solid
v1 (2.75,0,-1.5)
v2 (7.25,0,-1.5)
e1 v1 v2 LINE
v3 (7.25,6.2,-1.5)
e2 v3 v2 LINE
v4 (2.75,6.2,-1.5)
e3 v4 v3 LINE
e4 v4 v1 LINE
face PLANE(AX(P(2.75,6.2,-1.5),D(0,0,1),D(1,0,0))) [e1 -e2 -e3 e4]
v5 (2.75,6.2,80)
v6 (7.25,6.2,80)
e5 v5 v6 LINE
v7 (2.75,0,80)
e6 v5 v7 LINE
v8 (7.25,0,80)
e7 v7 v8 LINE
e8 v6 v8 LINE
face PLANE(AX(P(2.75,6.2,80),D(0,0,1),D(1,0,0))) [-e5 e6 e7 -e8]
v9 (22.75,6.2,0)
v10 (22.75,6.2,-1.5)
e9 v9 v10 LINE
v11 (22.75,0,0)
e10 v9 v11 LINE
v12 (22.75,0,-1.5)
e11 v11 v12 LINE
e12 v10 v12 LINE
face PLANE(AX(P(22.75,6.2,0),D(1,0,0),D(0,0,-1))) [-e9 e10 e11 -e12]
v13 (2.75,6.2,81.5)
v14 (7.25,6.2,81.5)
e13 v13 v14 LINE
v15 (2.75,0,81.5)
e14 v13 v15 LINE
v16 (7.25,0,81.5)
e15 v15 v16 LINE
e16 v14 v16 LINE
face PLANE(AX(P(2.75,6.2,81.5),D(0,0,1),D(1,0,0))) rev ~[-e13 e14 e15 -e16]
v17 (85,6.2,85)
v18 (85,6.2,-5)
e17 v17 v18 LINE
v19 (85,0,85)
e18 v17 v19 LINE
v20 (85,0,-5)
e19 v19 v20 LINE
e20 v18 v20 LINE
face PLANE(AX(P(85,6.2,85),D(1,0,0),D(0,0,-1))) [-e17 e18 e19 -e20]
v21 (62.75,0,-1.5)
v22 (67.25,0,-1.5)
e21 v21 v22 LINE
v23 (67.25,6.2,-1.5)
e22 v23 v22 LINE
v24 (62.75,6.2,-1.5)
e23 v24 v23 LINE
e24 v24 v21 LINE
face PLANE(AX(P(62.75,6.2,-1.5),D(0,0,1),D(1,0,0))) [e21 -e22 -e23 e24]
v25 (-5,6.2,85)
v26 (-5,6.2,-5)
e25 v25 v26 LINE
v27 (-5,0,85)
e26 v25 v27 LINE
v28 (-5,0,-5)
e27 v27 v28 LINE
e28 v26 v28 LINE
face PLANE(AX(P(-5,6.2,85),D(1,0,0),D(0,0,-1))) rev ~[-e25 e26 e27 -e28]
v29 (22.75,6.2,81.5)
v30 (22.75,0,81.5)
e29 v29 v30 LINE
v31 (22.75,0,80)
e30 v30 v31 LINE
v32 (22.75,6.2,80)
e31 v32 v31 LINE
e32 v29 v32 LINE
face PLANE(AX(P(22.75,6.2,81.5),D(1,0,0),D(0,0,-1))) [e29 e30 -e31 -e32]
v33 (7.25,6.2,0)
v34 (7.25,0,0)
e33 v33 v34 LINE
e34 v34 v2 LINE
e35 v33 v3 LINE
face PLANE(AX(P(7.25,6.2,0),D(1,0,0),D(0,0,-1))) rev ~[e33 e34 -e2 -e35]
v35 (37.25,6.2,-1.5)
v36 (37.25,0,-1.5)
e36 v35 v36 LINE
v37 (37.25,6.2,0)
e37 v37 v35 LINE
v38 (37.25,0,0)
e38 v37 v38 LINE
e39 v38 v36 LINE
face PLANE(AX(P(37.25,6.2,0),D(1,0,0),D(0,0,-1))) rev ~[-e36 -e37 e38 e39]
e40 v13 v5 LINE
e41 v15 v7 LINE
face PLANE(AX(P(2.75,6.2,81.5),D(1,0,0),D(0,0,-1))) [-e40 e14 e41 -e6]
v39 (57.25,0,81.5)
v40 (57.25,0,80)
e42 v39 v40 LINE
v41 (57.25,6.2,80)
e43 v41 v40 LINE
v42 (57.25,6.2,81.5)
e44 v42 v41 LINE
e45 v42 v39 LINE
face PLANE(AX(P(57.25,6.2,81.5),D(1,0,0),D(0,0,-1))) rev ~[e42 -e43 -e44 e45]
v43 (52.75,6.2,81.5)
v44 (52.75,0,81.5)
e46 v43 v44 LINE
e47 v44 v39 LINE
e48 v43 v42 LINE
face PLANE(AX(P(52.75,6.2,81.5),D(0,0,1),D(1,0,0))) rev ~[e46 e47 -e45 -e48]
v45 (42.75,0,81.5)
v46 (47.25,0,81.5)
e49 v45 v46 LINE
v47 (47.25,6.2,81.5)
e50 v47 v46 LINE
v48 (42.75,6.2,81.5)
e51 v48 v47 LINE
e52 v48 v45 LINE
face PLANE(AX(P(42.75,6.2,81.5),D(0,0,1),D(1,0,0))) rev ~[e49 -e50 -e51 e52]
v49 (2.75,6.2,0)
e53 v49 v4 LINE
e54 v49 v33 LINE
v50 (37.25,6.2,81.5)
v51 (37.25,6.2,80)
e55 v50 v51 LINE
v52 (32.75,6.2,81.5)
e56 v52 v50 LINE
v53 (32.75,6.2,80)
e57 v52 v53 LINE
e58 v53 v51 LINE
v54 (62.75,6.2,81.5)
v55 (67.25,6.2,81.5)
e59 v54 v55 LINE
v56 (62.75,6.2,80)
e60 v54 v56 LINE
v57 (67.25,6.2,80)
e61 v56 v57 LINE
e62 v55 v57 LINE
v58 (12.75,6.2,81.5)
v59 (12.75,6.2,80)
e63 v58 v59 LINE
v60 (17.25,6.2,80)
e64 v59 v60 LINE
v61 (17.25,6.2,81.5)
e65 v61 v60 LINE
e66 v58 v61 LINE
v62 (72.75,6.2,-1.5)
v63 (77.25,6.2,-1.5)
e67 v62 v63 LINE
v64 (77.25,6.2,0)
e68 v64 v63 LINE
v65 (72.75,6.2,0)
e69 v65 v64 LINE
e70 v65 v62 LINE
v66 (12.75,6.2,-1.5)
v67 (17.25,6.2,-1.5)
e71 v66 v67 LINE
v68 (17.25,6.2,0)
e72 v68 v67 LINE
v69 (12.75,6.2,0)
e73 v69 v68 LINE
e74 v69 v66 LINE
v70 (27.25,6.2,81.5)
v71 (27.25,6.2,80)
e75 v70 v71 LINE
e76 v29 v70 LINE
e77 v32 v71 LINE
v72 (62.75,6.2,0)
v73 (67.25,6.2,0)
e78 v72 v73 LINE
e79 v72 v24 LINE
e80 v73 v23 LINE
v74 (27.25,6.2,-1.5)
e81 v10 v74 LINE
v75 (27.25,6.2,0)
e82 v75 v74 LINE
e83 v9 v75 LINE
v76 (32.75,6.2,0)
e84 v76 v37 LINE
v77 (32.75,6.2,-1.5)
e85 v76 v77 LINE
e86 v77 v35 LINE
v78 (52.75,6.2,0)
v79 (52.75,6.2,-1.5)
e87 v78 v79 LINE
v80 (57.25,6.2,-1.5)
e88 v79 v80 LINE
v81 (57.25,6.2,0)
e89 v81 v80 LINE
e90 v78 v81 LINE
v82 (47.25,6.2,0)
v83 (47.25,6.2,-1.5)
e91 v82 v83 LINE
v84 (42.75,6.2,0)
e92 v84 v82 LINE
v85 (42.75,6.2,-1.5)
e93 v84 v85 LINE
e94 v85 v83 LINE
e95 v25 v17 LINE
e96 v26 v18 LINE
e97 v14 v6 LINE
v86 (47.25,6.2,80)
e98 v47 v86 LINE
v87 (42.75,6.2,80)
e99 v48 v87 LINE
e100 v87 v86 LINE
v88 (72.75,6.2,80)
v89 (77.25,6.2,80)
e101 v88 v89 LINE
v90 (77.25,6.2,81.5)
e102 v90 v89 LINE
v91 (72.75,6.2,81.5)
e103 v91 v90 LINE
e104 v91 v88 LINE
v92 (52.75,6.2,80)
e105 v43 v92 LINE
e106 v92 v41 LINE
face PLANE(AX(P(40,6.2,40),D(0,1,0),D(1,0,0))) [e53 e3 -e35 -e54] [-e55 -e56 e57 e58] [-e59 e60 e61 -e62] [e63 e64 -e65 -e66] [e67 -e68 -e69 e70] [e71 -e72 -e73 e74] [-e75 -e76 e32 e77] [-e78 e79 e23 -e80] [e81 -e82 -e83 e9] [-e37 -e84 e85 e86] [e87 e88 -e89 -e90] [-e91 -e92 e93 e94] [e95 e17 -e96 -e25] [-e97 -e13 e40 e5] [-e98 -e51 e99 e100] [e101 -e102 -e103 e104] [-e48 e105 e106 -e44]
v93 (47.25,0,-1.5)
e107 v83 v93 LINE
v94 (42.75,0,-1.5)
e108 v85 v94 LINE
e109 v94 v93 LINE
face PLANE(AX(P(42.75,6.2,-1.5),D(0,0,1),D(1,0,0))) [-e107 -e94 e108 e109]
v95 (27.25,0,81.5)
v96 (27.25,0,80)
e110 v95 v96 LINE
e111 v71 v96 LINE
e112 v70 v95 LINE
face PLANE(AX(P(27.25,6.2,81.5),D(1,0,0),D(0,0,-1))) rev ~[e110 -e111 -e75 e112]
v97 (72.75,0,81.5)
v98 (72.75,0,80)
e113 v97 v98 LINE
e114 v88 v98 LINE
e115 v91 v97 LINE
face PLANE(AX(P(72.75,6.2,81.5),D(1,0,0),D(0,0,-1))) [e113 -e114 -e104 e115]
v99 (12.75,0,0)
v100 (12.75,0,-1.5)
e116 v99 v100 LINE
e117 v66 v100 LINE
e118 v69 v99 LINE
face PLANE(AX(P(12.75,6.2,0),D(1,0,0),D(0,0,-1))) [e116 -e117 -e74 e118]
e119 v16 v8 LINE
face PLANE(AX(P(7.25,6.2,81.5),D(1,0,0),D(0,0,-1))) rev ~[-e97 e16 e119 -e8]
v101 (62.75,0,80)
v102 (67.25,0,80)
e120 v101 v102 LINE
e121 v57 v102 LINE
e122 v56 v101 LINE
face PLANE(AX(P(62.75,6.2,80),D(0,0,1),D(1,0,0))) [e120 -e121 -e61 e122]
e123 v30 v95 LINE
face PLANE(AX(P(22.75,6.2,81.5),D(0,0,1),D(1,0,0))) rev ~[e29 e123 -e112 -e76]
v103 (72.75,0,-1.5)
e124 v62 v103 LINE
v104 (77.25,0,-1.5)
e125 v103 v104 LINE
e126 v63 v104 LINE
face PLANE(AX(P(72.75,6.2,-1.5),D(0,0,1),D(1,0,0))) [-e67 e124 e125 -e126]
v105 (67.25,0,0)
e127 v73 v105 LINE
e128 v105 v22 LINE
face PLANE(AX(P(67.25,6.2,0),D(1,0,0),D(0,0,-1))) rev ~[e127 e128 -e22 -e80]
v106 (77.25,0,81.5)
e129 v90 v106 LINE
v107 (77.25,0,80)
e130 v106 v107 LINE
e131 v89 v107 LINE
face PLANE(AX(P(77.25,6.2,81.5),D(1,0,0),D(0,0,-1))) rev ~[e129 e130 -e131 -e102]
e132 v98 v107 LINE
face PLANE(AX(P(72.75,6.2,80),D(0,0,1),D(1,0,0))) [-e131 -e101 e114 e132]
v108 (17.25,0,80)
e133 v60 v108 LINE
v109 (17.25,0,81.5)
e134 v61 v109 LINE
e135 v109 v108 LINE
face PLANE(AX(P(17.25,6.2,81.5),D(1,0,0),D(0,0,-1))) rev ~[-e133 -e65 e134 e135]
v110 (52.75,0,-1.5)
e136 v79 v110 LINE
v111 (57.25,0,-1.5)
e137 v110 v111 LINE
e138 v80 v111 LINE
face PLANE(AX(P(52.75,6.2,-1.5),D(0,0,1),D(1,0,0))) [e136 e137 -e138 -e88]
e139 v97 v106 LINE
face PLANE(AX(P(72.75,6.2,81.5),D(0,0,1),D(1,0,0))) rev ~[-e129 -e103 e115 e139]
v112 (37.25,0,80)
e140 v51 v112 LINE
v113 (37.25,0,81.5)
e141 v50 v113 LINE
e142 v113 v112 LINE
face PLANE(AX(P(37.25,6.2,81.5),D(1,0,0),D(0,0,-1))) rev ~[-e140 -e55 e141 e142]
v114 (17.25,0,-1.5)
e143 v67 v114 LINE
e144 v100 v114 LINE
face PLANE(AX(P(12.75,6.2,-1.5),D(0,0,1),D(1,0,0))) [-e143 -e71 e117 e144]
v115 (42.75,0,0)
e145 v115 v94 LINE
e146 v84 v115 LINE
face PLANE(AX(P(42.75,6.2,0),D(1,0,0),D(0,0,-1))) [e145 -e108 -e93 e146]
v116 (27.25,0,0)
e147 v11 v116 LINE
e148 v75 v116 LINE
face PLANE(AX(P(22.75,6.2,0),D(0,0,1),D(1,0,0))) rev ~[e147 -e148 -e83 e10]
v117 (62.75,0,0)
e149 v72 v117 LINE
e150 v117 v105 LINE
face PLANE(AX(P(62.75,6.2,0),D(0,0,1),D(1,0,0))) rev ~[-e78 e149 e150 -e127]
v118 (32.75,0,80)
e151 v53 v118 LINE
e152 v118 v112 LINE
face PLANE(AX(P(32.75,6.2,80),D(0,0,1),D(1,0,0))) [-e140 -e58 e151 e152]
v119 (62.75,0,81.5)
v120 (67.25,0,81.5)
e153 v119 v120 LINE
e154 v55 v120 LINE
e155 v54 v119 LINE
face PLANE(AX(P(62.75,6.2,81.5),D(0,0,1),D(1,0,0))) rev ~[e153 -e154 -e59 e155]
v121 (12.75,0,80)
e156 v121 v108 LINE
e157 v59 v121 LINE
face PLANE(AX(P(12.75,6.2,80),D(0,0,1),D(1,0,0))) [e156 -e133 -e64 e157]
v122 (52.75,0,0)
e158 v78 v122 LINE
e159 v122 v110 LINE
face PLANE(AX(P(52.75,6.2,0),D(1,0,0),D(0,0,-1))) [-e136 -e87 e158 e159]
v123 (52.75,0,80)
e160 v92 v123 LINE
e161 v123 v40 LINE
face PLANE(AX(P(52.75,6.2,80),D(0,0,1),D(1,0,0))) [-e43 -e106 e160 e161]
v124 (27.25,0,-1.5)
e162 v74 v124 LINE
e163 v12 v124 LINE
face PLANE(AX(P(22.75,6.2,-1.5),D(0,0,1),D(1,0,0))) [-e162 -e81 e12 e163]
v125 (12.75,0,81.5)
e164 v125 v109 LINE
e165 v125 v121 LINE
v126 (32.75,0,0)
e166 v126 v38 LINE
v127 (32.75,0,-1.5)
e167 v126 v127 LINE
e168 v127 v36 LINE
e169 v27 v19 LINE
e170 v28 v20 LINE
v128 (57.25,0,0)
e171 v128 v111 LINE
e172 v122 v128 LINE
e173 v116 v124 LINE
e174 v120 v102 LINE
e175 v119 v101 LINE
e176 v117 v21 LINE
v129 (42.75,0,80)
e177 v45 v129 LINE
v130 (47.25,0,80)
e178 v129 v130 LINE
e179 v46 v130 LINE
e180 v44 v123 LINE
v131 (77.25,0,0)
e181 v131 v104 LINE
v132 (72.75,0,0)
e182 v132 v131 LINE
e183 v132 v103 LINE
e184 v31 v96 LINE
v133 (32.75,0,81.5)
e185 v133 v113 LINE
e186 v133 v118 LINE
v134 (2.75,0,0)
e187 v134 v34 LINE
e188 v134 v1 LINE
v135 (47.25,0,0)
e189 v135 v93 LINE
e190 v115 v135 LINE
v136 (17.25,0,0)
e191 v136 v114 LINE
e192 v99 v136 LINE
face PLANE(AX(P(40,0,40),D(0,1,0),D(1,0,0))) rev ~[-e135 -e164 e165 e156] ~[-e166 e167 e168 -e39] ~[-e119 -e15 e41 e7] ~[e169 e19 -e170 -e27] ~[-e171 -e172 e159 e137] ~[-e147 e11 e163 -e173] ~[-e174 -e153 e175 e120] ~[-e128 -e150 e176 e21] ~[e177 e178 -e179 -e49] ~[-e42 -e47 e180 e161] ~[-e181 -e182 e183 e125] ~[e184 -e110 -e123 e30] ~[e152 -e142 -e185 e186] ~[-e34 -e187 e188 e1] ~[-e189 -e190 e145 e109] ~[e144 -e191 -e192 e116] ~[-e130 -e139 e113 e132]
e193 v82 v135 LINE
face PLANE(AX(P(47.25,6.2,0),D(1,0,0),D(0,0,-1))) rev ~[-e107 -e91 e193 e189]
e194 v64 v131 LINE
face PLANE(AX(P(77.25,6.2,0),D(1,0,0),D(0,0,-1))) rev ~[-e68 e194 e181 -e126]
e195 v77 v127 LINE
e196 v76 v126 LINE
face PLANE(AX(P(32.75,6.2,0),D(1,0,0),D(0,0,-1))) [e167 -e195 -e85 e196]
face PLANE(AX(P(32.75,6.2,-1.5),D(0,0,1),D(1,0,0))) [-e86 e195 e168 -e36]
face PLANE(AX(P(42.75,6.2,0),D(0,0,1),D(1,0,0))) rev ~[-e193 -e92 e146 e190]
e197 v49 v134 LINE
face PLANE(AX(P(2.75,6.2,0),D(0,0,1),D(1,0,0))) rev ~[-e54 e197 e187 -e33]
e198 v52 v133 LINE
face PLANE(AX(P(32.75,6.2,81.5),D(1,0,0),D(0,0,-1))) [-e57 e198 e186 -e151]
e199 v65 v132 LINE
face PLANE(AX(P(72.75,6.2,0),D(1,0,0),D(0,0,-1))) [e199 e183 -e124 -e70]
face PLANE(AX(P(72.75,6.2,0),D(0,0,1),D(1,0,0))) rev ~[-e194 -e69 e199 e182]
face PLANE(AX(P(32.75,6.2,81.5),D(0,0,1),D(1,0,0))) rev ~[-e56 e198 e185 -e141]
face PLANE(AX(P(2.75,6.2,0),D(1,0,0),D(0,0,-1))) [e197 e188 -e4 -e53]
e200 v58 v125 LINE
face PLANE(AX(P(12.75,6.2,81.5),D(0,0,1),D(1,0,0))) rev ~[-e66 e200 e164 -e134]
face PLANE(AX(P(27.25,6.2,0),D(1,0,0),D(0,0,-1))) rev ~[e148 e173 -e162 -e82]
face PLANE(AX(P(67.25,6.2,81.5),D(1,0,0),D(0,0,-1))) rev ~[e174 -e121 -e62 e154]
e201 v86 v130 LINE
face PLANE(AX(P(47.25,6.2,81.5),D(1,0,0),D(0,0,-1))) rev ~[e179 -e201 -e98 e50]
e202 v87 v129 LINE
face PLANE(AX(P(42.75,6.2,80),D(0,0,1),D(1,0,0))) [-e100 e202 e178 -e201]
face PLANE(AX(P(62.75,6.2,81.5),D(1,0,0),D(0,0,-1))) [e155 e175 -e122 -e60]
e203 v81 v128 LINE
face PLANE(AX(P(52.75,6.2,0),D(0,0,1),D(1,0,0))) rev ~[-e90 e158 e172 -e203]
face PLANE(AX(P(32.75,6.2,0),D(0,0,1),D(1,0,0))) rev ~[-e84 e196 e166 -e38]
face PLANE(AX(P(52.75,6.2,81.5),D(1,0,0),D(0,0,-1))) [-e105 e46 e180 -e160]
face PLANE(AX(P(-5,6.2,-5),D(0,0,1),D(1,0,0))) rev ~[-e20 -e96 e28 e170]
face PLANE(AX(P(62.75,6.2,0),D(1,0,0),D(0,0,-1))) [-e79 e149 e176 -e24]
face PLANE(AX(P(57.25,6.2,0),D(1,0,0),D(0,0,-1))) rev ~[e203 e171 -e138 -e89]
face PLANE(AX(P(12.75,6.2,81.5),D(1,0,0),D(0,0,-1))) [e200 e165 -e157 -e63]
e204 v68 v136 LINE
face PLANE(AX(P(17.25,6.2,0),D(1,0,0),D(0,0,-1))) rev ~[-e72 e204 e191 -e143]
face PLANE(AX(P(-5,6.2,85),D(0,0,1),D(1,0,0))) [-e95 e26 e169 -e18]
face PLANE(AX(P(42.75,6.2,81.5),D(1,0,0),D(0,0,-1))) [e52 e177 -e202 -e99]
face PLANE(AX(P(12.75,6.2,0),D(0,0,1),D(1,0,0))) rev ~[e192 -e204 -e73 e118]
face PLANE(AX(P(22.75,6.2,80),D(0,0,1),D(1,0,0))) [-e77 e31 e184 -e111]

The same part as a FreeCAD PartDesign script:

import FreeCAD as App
import Part
import Sketcher

V = App.Vector

doc = App.newDocument("Part")
params = doc.addObject("Spreadsheet::Sheet", "Params")
for row, (alias, value) in enumerate([
    ("sketch1_width", "100 mm"),
    ("pad1_length", "6.2 mm"),
    ("sketch2_width", "90 mm"),
    ("sketch3_width", "4.5 mm"),
    ("sketch3_height", "1.5 mm"),
    ("linearpattern_pitch", "10 mm"),
], start=1):
    params.set(f"A{row}", alias)
    params.set(f"B{row}", "=" + value)
    params.setAlias(f"B{row}", alias)

body = doc.addObject("PartDesign::Body", "Body")

sketch1 = doc.addObject("Sketcher::SketchObject", "Sketch")
body.addObject(sketch1)
sketch1.AttachmentSupport = (doc.XZ_Plane, [""])
sketch1.MapMode = "FlatFace"
sketch1.addGeometry([
    Part.LineSegment(V(-10, -10, 0), V(-10, 90, 0)),
    Part.LineSegment(V(-10, 90, 0), V(90, 90, 0)),
    Part.LineSegment(V(90, 90, 0), V(90, -10, 0)),
    Part.LineSegment(V(90, -10, 0), V(-10, -10, 0)),
], False)
sketch1.addConstraint([
    Sketcher.Constraint("Coincident", 0, 2, 1, 1),
    Sketcher.Constraint("Coincident", 1, 2, 2, 1),
    Sketcher.Constraint("Coincident", 2, 2, 3, 1),
    Sketcher.Constraint("Coincident", 3, 2, 0, 1),
    Sketcher.Constraint("Vertical", 0),
    Sketcher.Constraint("Horizontal", 1),
    Sketcher.Constraint("Vertical", 2),
    Sketcher.Constraint("Horizontal", 3),
    Sketcher.Constraint("Equal", 3, 0),
    Sketcher.Constraint("DistanceX", 1, 1, 1, 2, 100.0),
    Sketcher.Constraint("DistanceX", 0, 2, -1, 1, 10.0),
    Sketcher.Constraint("DistanceY", -1, 1, 0, 2, 90.0),
])
sketch1.setExpression("Constraints[9]", "Params.sketch1_width")
pad1 = doc.addObject("PartDesign::Pad", "Pad")
body.addObject(pad1)
pad1.Profile = sketch1
pad1.setExpression("Length", "Params.pad1_length")
pad1.Reversed = True

sketch2 = doc.addObject("Sketcher::SketchObject", "Sketch001")
body.addObject(sketch2)
sketch2.AttachmentSupport = (doc.XZ_Plane, [""])
sketch2.MapMode = "FlatFace"
sketch2.AttachmentOffset = App.Placement(V(0, 0, -6.2), App.Rotation())
sketch2.addGeometry([
    Part.LineSegment(V(-25, -25, 0), V(-25, 105, 0)),
    Part.LineSegment(V(-25, 105, 0), V(105, 105, 0)),
    Part.LineSegment(V(105, 105, 0), V(105, -25, 0)),
    Part.LineSegment(V(105, -25, 0), V(-25, -25, 0)),
    Part.LineSegment(V(85, 85, 0), V(-5, 85, 0)),
    Part.LineSegment(V(-5, 85, 0), V(-5, -5, 0)),
    Part.LineSegment(V(-5, -5, 0), V(85, -5, 0)),
    Part.LineSegment(V(85, -5, 0), V(85, 85, 0)),
], False)
sketch2.addConstraint([
    Sketcher.Constraint("Coincident", 0, 2, 1, 1),
    Sketcher.Constraint("Coincident", 1, 2, 2, 1),
    Sketcher.Constraint("Coincident", 2, 2, 3, 1),
    Sketcher.Constraint("Coincident", 3, 2, 0, 1),
    Sketcher.Constraint("Coincident", 4, 2, 5, 1),
    Sketcher.Constraint("Coincident", 5, 2, 6, 1),
    Sketcher.Constraint("Coincident", 6, 2, 7, 1),
    Sketcher.Constraint("Coincident", 7, 2, 4, 1),
    Sketcher.Constraint("Vertical", 0),
    Sketcher.Constraint("Horizontal", 1),
    Sketcher.Constraint("Vertical", 2),
    Sketcher.Constraint("Horizontal", 3),
    Sketcher.Constraint("Horizontal", 4),
    Sketcher.Constraint("Vertical", 5),
    Sketcher.Constraint("Horizontal", 6),
    Sketcher.Constraint("Vertical", 7),
    Sketcher.Constraint("Equal", 3, 0),
    Sketcher.Constraint("Equal", 6, 5),
    Sketcher.Constraint("DistanceX", 4, 2, 4, 1, 90.0),
    Sketcher.Constraint("DistanceX", 4, 2, -1, 1, 5.0),
    Sketcher.Constraint("DistanceY", -1, 1, 4, 2, 85.0),
    Sketcher.Constraint("DistanceX", 1, 1, 1, 2, 130.312),
    Sketcher.Constraint("DistanceX", 0, 2, -1, 1, 25.156),
    Sketcher.Constraint("DistanceY", -1, 1, 0, 2, 105.156),
])
sketch2.setExpression("Constraints[18]", "Params.sketch2_width")
pocket1 = doc.addObject("PartDesign::Pocket", "Pocket")
body.addObject(pocket1)
pocket1.Profile = sketch2
pocket1.Type = "ThroughAll"
pocket1.Reversed = True

sketch3 = doc.addObject("Sketcher::SketchObject", "Sketch002")
body.addObject(sketch3)
sketch3.AttachmentSupport = (doc.XZ_Plane, [""])
sketch3.MapMode = "FlatFace"
sketch3.AttachmentOffset = App.Placement(V(0, 0, -6.2), App.Rotation())
sketch3.addGeometry([
    Part.LineSegment(V(2.8, -1.5, 0), V(2.8, 0, 0)),
    Part.LineSegment(V(2.8, 0, 0), V(7.2, 0, 0)),
    Part.LineSegment(V(7.2, 0, 0), V(7.2, -1.5, 0)),
    Part.LineSegment(V(7.2, -1.5, 0), V(2.8, -1.5, 0)),
    Part.LineSegment(V(2.8, 80, 0), V(2.8, 81.5, 0)),
    Part.LineSegment(V(2.8, 81.5, 0), V(7.2, 81.5, 0)),
    Part.LineSegment(V(7.2, 81.5, 0), V(7.2, 80, 0)),
    Part.LineSegment(V(7.2, 80, 0), V(2.8, 80, 0)),
], False)
sketch3.addConstraint([
    Sketcher.Constraint("Coincident", 0, 2, 1, 1),
    Sketcher.Constraint("Coincident", 1, 2, 2, 1),
    Sketcher.Constraint("Coincident", 2, 2, 3, 1),
    Sketcher.Constraint("Coincident", 3, 2, 0, 1),
    Sketcher.Constraint("Coincident", 4, 2, 5, 1),
    Sketcher.Constraint("Coincident", 5, 2, 6, 1),
    Sketcher.Constraint("Coincident", 6, 2, 7, 1),
    Sketcher.Constraint("Coincident", 7, 2, 4, 1),
    Sketcher.Constraint("Vertical", 0),
    Sketcher.Constraint("Horizontal", 1),
    Sketcher.Constraint("Vertical", 2),
    Sketcher.Constraint("Horizontal", 3),
    Sketcher.Constraint("Vertical", 4),
    Sketcher.Constraint("Horizontal", 5),
    Sketcher.Constraint("Vertical", 6),
    Sketcher.Constraint("Horizontal", 7),
    Sketcher.Constraint("PointOnObject", 0, 2, -1),
    Sketcher.Constraint("Vertical", 3, 2, 4, 2),
    Sketcher.Constraint("Vertical", 2, 2, 5, 2),
    Sketcher.Constraint("Equal", 2, 4),
    Sketcher.Constraint("DistanceX", 1, 1, 1, 2, 4.5),
    Sketcher.Constraint("DistanceY", 0, 1, 0, 2, 1.5),
    Sketcher.Constraint("DistanceY", -1, 1, 6, 2, 80.0),
    Sketcher.Constraint("DistanceX", -1, 1, 0, 2, 2.75),
])
sketch3.setExpression("Constraints[20]", "Params.sketch3_width")
sketch3.setExpression("Constraints[21]", "Params.sketch3_height")
pocket2 = doc.addObject("PartDesign::Pocket", "Pocket001")
body.addObject(pocket2)
pocket2.Profile = sketch3
pocket2.Type = "ThroughAll"
pocket2.Reversed = True
doc.recompute()

linearpattern = doc.addObject("PartDesign::LinearPattern", "LinearPattern")
body.addObject(linearpattern)
linearpattern.Originals = [pocket2]
linearpattern.Direction = (doc.X_Axis, [""])
linearpattern.Mode = "offset"
linearpattern.setExpression("Offset", "Params.linearpattern_pitch")
linearpattern.Occurrences = 8
body.Tip = linearpattern

doc.recompute()
